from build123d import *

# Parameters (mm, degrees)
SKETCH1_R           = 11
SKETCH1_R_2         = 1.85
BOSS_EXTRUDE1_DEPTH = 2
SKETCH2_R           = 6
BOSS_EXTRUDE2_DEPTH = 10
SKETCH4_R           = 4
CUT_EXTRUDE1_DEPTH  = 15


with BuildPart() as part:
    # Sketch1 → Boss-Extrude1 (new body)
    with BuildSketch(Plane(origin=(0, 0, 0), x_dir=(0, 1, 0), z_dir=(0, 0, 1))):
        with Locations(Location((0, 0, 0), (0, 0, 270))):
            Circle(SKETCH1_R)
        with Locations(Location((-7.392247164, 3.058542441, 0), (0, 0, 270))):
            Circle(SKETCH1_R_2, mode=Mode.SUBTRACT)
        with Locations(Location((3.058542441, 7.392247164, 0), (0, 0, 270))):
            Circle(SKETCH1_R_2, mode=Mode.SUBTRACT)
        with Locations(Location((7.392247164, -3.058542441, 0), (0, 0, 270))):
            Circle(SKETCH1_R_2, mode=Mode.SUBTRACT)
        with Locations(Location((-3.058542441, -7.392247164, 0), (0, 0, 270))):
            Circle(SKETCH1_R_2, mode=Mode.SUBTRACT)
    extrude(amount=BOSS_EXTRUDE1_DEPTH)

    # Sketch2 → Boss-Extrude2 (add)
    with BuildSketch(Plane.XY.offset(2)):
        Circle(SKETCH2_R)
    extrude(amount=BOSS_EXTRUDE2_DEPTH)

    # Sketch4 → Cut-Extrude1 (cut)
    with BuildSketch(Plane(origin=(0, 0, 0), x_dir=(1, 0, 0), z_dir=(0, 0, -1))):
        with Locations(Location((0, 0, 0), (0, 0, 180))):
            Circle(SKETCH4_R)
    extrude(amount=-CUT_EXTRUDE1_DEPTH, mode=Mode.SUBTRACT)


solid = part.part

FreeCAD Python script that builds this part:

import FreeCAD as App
import Part
import Sketcher
Q = App.Units.Quantity

doc = App.newDocument("Part")
body = doc.addObject("PartDesign::Body", "Body")

# Sketch on XY plane
sketch1 = body.newObject("Sketcher::SketchObject", "Sketch")
sketch1.AttachmentSupport = (doc.getObject("XY_Plane"), [""])
sketch1.MapMode = "FlatFace"
sketch1.addGeometry([
    Part.Circle(App.Vector(0, 0, 0), App.Vector(0, 0, 1), 11),  # 0
    Part.Circle(App.Vector(-3.1, -7.4, 0), App.Vector(0, 0, 1), 1.9),  # 1
    Part.Circle(App.Vector(7.4, -3.1, 0), App.Vector(0, 0, 1), 1.9),  # 2
    Part.Circle(App.Vector(-7.4, 3.1, 0), App.Vector(0, 0, 1), 1.9),  # 3
    Part.Circle(App.Vector(3.1, 7.4, 0), App.Vector(0, 0, 1), 1.9),  # 4
], False)
sketch1.addConstraint([
    Sketcher.Constraint("Coincident", 0, 3, -1, 1),
    Sketcher.Constraint("Equal", 1, 2),
    Sketcher.Constraint("Equal", 2, 3),
    Sketcher.Constraint("Equal", 3, 4),
    Sketcher.Constraint("Symmetric", 2, 3, 3, 3, -1, 1),
    Sketcher.Constraint("Symmetric", 1, 3, 4, 3, -1, 1),
    Sketcher.Constraint("Diameter", 0, Q("22 mm")),
    Sketcher.Constraint("Diameter", 1, Q("3.7 mm")),
    Sketcher.Constraint("DistanceX", 1, 3, 2, 3, Q("10.45079 mm")),
    Sketcher.Constraint("DistanceY", 1, 3, 3, 3, Q("10.45079 mm")),
    Sketcher.Constraint("DistanceX", 1, 3, -1, 1, Q("3.058542 mm")),
    Sketcher.Constraint("DistanceY", 1, 3, -1, 1, Q("7.392247 mm")),
])
pad1 = body.newObject("PartDesign::Pad", "Pad")
pad1.Profile = sketch1
pad1.Length = 2

# Sketch on XY plane
sketch2 = body.newObject("Sketcher::SketchObject", "Sketch001")
sketch2.AttachmentSupport = (doc.getObject("XY_Plane"), [""])
sketch2.MapMode = "FlatFace"
sketch2.AttachmentOffset = App.Placement(App.Vector(0, 0, 2), App.Rotation())
sketch2.addGeometry(Part.Circle(App.Vector(0, 0, 0), App.Vector(0, 0, 1), 6), False)
sketch2.addConstraint([
    Sketcher.Constraint("Coincident", 0, 3, -1, 1),
    Sketcher.Constraint("Diameter", 0, Q("12 mm")),
])
pad2 = body.newObject("PartDesign::Pad", "Pad001")
pad2.Profile = sketch2
pad2.Length = 10

# Sketch on XY plane
sketch3 = body.newObject("Sketcher::SketchObject", "Sketch002")
sketch3.AttachmentSupport = (doc.getObject("XY_Plane"), [""])
sketch3.MapMode = "FlatFace"
sketch3.addGeometry(Part.Circle(App.Vector(0, 0, 0), App.Vector(0, 0, 1), 4), False)
sketch3.addConstraint([
    Sketcher.Constraint("Coincident", 0, 3, -1, 1),
    Sketcher.Constraint("Diameter", 0, Q("8 mm")),
])
pocket1 = body.newObject("PartDesign::Pocket", "Pocket")
pocket1.Profile = sketch3
pocket1.Length = 15
pocket1.Reversed = True

doc.recompute()
